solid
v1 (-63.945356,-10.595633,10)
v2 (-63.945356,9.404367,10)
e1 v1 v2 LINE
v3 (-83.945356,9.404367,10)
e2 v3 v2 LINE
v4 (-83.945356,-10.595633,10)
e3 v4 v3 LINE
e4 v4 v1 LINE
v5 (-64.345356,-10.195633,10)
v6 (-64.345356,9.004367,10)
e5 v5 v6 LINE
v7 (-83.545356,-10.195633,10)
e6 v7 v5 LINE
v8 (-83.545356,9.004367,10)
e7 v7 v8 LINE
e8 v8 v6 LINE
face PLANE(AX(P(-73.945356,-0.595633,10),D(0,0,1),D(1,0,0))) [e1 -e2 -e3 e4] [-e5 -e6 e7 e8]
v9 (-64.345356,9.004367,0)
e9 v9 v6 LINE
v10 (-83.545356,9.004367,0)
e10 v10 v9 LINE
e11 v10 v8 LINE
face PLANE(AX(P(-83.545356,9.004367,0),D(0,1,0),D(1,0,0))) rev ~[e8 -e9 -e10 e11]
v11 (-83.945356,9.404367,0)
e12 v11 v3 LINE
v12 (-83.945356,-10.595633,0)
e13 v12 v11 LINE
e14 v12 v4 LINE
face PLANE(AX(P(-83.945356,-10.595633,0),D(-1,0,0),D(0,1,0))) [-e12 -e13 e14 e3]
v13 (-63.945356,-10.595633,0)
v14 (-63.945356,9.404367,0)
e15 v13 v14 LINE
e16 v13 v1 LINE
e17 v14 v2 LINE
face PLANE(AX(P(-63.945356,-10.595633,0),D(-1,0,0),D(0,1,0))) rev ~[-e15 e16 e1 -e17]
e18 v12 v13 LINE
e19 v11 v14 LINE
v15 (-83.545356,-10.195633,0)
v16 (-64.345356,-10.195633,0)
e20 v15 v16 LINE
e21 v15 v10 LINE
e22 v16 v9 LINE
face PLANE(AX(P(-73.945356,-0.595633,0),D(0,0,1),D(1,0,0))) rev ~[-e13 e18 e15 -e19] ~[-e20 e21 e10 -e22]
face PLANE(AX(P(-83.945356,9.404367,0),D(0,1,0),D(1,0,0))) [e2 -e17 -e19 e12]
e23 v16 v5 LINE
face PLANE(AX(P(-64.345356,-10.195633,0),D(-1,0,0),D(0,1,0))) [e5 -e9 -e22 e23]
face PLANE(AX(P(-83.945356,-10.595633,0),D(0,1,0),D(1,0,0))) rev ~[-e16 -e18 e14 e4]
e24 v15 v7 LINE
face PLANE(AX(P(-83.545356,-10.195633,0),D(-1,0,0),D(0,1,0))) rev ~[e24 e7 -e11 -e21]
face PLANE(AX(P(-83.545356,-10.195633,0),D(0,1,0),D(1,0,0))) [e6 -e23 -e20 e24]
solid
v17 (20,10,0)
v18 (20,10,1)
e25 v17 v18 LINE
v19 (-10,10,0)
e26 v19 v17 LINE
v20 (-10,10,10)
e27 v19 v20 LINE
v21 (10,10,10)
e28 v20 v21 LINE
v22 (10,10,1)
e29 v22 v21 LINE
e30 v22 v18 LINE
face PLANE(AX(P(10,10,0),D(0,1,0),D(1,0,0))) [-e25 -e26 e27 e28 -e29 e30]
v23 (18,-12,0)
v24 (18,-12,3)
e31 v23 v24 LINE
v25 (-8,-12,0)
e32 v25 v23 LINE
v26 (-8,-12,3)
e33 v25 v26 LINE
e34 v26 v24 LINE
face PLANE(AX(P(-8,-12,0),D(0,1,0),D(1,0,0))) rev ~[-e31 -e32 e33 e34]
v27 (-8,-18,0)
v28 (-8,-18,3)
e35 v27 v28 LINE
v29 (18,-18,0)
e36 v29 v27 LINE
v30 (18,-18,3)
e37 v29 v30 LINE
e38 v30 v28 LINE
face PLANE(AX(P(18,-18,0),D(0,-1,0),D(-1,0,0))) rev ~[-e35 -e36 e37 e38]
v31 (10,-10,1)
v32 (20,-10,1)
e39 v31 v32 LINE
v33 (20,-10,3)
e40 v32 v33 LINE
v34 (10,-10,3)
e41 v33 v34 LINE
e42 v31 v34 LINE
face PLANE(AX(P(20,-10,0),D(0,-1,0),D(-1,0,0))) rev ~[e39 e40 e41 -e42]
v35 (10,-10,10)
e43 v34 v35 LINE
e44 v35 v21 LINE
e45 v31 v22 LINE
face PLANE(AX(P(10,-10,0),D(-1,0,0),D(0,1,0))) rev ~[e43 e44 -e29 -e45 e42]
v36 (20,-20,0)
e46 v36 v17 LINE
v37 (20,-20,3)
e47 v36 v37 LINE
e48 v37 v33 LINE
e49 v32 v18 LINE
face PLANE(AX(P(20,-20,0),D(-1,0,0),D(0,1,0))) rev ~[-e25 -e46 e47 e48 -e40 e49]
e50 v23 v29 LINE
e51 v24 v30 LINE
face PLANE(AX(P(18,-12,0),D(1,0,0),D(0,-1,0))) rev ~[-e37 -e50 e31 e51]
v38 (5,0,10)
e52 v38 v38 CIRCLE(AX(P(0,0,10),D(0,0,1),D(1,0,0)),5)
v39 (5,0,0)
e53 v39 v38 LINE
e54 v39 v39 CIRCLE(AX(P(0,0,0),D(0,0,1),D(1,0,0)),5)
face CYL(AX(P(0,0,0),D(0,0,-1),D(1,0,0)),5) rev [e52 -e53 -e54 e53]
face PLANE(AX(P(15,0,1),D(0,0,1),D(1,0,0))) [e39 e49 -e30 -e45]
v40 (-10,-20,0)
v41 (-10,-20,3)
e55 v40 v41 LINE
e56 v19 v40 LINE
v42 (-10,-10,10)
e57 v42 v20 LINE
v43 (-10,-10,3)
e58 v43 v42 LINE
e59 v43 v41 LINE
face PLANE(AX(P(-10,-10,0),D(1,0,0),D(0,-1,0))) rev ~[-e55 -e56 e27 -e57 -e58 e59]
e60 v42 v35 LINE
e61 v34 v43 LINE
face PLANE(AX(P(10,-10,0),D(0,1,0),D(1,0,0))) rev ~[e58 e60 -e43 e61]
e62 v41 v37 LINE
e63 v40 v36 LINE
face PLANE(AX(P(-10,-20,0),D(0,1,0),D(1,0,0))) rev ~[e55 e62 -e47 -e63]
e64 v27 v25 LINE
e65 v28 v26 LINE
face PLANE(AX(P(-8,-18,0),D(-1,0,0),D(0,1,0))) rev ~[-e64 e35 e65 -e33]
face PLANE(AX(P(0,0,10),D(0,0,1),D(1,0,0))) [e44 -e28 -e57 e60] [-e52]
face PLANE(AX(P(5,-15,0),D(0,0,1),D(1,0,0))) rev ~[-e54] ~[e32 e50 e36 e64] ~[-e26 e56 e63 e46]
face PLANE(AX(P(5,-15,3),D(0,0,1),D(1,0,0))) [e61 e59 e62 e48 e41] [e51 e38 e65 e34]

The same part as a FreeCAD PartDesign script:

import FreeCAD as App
import Part
import Sketcher

V = App.Vector

doc = App.newDocument("Part")
body = doc.addObject("PartDesign::Body", "Body")

sketch1 = body.newObject("Sketcher::SketchObject", "Sketch")
sketch1.AttachmentSupport = (doc.getObject("XY_Plane"), [""])
sketch1.MapMode = "FlatFace"
sketch1.addGeometry([
    Part.LineSegment(V(-10, 10, 0), V(-10, -10, 0)),
    Part.LineSegment(V(-10, -10, 0), V(10, -10, 0)),
    Part.LineSegment(V(10, -10, 0), V(10, 10, 0)),
    Part.LineSegment(V(10, 10, 0), V(-10, 10, 0)),
    Part.Circle(V(0, 0, 0), V(0, 0, 1), 5),
], False)
sketch1.addConstraint([
    Sketcher.Constraint("Coincident", 0, 2, 1, 1),
    Sketcher.Constraint("Coincident", 1, 2, 2, 1),
    Sketcher.Constraint("Coincident", 2, 2, 3, 1),
    Sketcher.Constraint("Coincident", 3, 2, 0, 1),
    Sketcher.Constraint("Vertical", 0),
    Sketcher.Constraint("Horizontal", 1),
    Sketcher.Constraint("Vertical", 2),
    Sketcher.Constraint("Horizontal", 3),
    Sketcher.Constraint("Coincident", 4, 3, -1, 1),
    Sketcher.Constraint("Symmetric", 0, 2, 2, 2, -1, 1),
    Sketcher.Constraint("Equal", 3, 0),
    Sketcher.Constraint("Diameter", 4, 10.0),
    Sketcher.Constraint("DistanceX", 1, 1, 1, 2, 20.0),
])
pad1 = body.newObject("PartDesign::Pad", "Pad")
pad1.Profile = sketch1
pad1.Length = 10

sketch2 = body.newObject("Sketcher::SketchObject", "Sketch001")
sketch2.AttachmentSupport = (doc.getObject("XY_Plane"), [""])
sketch2.MapMode = "FlatFace"
sketch2.addGeometry([
    Part.LineSegment(V(10, 10, 0), V(10, -10, 0)),
    Part.LineSegment(V(10, -10, 0), V(20, -10, 0)),
    Part.LineSegment(V(20, -10, 0), V(20, 10, 0)),
    Part.LineSegment(V(20, 10, 0), V(10, 10, 0)),
], False)
sketch2.addConstraint([
    Sketcher.Constraint("Coincident", 0, 2, 1, 1),
    Sketcher.Constraint("Coincident", 1, 2, 2, 1),
    Sketcher.Constraint("Coincident", 2, 2, 3, 1),
    Sketcher.Constraint("Coincident", 3, 2, 0, 1),
    Sketcher.Constraint("Vertical", 0),
    Sketcher.Constraint("Horizontal", 1),
    Sketcher.Constraint("Vertical", 2),
    Sketcher.Constraint("Horizontal", 3),
    Sketcher.Constraint("DistanceX", 1, 1, 1, 2, 10.0),
    Sketcher.Constraint("DistanceY", 0, 2, 0, 1, 20.0),
    Sketcher.Constraint("DistanceX", -1, 1, 0, 2, 10.0),
    Sketcher.Constraint("DistanceY", 0, 2, -1, 1, 10.0),
])
pad2 = body.newObject("PartDesign::Pad", "Pad001")
pad2.Profile = sketch2
pad2.Length = 1

sketch3 = body.newObject("Sketcher::SketchObject", "Sketch002")
sketch3.AttachmentSupport = (doc.getObject("XY_Plane"), [""])
sketch3.MapMode = "FlatFace"
sketch3.addGeometry([
    Part.LineSegment(V(20, -10, 0), V(-10, -10, 0)),
    Part.LineSegment(V(-10, -10, 0), V(-10, -20, 0)),
    Part.LineSegment(V(-10, -20, 0), V(20, -20, 0)),
    Part.LineSegment(V(20, -20, 0), V(20, -10, 0)),
    Part.LineSegment(V(18, -12, 0), V(18, -18, 0)),
    Part.LineSegment(V(18, -18, 0), V(-8, -18, 0)),
    Part.LineSegment(V(-8, -18, 0), V(-8, -12, 0)),
    Part.LineSegment(V(-8, -12, 0), V(18, -12, 0)),
], False)
sketch3.addConstraint([
    Sketcher.Constraint("Coincident", 0, 2, 1, 1),
    Sketcher.Constraint("Coincident", 1, 2, 2, 1),
    Sketcher.Constraint("Coincident", 2, 2, 3, 1),
    Sketcher.Constraint("Coincident", 3, 2, 0, 1),
    Sketcher.Constraint("Coincident", 4, 2, 5, 1),
    Sketcher.Constraint("Coincident", 5, 2, 6, 1),
    Sketcher.Constraint("Coincident", 6, 2, 7, 1),
    Sketcher.Constraint("Coincident", 7, 2, 4, 1),
    Sketcher.Constraint("Horizontal", 0),
    Sketcher.Constraint("Vertical", 1),
    Sketcher.Constraint("Horizontal", 2),
    Sketcher.Constraint("Vertical", 3),
    Sketcher.Constraint("Vertical", 4),
    Sketcher.Constraint("Horizontal", 5),
    Sketcher.Constraint("Vertical", 6),
    Sketcher.Constraint("Horizontal", 7),
    Sketcher.Constraint("DistanceX", 0, 2, 0, 1, 30.0),
    Sketcher.Constraint("DistanceX", 5, 2, 5, 1, 26.0),
    Sketcher.Constraint("DistanceY", 1, 2, 1, 1, 10.0),
    Sketcher.Constraint("DistanceY", 4, 2, 4, 1, 6.0),
    Sketcher.Constraint("DistanceX", 0, 2, -1, 1, 10.0),
    Sketcher.Constraint("DistanceY", 0, 2, -1, 1, 10.0),
    Sketcher.Constraint("DistanceX", -1, 1, 4, 2, 18.0),
    Sketcher.Constraint("DistanceY", 4, 2, -1, 1, 18.0),
])
pad3 = body.newObject("PartDesign::Pad", "Pad002")
pad3.Profile = sketch3
pad3.Length = 3
body2 = doc.addObject("PartDesign::Body", "Body001")

sketch4 = body2.newObject("Sketcher::SketchObject", "Sketch003")
sketch4.AttachmentSupport = (doc.getObject("XY_Plane001"), [""])
sketch4.MapMode = "FlatFace"
sketch4.addGeometry([
    Part.LineSegment(V(-83.945356, 9.404367, 0), V(-83.945356, -10.595633, 0)),
    Part.LineSegment(V(-83.945356, -10.595633, 0), V(-63.945356, -10.595633, 0)),
    Part.LineSegment(V(-63.945356, -10.595633, 0), V(-63.945356, 9.404367, 0)),
    Part.LineSegment(V(-63.945356, 9.404367, 0), V(-83.945356, 9.404367, 0)),
    Part.LineSegment(V(-64.345356, -10.195633, 0), V(-83.545356, -10.195633, 0)),
    Part.LineSegment(V(-83.545356, -10.195633, 0), V(-83.545356, 9.004367, 0)),
    Part.LineSegment(V(-83.545356, 9.004367, 0), V(-64.345356, 9.004367, 0)),
    Part.LineSegment(V(-64.345356, 9.004367, 0), V(-64.345356, -10.195633, 0)),
], False)
sketch4.addConstraint([
    Sketcher.Constraint("Coincident", 0, 2, 1, 1),
    Sketcher.Constraint("Coincident", 1, 2, 2, 1),
    Sketcher.Constraint("Coincident", 2, 2, 3, 1),
    Sketcher.Constraint("Coincident", 3, 2, 0, 1),
    Sketcher.Constraint("Coincident", 4, 2, 5, 1),
    Sketcher.Constraint("Coincident", 5, 2, 6, 1),
    Sketcher.Constraint("Coincident", 6, 2, 7, 1),
    Sketcher.Constraint("Coincident", 7, 2, 4, 1),
    Sketcher.Constraint("Vertical", 0),
    Sketcher.Constraint("Horizontal", 1),
    Sketcher.Constraint("Vertical", 2),
    Sketcher.Constraint("Horizontal", 3),
    Sketcher.Constraint("Horizontal", 4),
    Sketcher.Constraint("Vertical", 5),
    Sketcher.Constraint("Horizontal", 6),
    Sketcher.Constraint("Vertical", 7),
    Sketcher.Constraint("Equal", 3, 0),
    Sketcher.Constraint("Equal", 6, 5),
    Sketcher.Constraint("DistanceX", 1, 1, 1, 2, 20.0),
    Sketcher.Constraint("DistanceX", 4, 2, 4, 1, 19.2),
    Sketcher.Constraint("DistanceX", 0, 2, 4, 2, 0.4),
    Sketcher.Constraint("DistanceY", 0, 2, 4, 2, 0.4),
    Sketcher.Constraint("DistanceX", 0, 2, -1, 1, 83.945356),
    Sketcher.Constraint("DistanceY", 0, 2, -1, 1, 10.595633),
])
pad4 = body2.newObject("PartDesign::Pad", "Pad003")
pad4.Profile = sketch4
pad4.Length = 10

doc.recompute()
